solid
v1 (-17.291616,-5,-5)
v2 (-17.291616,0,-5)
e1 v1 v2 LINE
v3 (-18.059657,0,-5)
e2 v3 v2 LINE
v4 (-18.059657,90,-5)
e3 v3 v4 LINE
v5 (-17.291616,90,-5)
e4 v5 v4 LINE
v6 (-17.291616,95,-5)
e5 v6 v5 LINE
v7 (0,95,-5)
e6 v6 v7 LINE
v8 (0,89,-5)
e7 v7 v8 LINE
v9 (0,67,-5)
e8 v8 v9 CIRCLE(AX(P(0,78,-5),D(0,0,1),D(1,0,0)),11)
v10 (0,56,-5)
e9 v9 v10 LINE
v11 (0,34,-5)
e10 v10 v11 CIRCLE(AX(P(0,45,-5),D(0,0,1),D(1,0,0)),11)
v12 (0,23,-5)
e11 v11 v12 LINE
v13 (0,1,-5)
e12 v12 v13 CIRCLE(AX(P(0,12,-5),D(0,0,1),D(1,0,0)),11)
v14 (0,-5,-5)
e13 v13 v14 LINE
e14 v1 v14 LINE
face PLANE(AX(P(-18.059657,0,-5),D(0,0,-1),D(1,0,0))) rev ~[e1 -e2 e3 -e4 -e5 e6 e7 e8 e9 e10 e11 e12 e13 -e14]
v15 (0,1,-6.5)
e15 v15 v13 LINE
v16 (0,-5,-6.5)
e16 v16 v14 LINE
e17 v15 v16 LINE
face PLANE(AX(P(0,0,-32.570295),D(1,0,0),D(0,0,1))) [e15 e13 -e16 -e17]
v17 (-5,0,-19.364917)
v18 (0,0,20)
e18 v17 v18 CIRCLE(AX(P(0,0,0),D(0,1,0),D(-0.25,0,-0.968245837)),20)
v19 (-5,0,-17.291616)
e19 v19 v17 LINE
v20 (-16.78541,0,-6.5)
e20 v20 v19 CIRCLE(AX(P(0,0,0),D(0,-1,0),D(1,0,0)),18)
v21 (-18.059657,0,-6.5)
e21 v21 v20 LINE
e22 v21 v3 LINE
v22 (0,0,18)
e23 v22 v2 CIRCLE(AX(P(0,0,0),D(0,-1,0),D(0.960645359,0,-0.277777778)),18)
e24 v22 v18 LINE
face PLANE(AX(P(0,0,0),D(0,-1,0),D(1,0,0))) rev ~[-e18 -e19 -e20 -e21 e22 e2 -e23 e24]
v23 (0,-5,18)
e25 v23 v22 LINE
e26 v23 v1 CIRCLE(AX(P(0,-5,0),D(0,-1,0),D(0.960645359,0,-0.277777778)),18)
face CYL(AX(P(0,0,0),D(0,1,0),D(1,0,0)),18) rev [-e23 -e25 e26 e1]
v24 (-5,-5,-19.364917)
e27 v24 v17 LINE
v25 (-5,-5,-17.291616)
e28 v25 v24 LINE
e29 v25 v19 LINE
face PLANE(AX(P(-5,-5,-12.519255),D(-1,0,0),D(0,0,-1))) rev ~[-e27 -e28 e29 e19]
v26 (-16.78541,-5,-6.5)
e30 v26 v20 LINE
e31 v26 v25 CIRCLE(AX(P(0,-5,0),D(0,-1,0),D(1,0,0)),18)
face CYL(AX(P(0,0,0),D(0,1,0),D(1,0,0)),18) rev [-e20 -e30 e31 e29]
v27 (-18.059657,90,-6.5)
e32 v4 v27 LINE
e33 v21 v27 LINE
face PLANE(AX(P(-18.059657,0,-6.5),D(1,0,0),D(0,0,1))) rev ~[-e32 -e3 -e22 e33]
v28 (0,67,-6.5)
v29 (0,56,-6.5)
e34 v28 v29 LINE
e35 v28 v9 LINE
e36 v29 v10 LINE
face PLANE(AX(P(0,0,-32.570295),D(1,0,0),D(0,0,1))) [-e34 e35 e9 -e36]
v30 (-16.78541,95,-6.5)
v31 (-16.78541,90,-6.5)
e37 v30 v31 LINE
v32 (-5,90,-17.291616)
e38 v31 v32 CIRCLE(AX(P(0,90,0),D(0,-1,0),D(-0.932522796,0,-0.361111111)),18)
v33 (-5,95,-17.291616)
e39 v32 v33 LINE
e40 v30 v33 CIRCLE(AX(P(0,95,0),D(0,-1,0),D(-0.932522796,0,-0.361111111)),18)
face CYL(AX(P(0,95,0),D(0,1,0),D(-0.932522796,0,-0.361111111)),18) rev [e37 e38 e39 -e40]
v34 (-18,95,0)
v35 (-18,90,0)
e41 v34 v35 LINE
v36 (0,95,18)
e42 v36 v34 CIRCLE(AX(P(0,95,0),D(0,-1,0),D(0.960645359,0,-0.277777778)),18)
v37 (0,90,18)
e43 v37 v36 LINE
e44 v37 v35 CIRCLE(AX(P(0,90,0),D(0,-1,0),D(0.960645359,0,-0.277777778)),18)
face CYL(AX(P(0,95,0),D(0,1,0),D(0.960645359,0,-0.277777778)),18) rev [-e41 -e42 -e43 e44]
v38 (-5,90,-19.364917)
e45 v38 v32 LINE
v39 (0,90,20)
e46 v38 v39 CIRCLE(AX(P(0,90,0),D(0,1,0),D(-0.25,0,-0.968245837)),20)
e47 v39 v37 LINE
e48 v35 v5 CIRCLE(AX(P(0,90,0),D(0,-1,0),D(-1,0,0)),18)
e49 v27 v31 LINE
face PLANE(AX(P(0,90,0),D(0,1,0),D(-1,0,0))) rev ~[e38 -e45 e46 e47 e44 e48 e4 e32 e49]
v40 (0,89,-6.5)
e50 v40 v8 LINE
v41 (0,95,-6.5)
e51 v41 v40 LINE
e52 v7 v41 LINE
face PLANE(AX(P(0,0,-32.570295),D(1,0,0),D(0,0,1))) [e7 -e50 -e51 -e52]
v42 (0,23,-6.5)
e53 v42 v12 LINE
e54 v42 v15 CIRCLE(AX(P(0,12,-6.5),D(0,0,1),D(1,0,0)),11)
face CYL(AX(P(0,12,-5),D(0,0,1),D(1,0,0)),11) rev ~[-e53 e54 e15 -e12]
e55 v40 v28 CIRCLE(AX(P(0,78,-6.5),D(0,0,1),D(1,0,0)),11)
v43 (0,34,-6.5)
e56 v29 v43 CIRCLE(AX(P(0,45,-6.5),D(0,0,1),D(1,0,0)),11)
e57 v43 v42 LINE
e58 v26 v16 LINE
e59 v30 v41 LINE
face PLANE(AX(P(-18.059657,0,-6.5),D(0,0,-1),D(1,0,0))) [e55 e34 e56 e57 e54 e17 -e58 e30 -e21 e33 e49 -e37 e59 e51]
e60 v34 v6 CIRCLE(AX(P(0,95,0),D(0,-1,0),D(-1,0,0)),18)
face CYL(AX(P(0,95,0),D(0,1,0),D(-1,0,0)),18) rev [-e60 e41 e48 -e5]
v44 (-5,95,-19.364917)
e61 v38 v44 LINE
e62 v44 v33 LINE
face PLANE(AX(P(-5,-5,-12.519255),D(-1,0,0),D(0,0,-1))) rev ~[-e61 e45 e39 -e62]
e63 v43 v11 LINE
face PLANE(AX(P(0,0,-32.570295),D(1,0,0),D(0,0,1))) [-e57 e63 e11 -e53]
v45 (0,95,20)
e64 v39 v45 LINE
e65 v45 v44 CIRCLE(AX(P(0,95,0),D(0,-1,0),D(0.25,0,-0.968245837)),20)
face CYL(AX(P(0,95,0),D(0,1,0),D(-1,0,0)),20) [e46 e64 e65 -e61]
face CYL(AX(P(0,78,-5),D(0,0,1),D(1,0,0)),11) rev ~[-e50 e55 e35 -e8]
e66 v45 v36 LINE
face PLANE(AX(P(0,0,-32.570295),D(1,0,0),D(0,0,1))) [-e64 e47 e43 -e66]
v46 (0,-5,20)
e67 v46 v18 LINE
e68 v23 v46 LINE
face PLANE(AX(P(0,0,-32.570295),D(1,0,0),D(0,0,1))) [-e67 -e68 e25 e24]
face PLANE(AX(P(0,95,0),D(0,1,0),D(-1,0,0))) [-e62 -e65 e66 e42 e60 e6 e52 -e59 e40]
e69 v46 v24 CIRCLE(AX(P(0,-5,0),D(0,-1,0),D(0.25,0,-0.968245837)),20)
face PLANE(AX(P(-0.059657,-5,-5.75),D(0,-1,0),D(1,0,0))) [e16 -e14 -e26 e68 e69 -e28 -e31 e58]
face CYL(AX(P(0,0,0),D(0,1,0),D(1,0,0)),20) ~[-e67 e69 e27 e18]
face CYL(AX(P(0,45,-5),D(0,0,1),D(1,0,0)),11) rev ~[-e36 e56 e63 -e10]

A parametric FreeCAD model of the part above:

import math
import FreeCAD as App
import Part
import Sketcher
from FreeCAD import Vector
Q = App.Units.Quantity


def add_polygon(sketch, points):
    """Adds a closed chain of lines whose ends are joined by coincident constraints."""
    first, n = sketch.GeometryCount, len(points)
    for a, b in zip(points, points[1:] + points[:1]):
        sketch.addGeometry(Part.LineSegment(App.Vector(*a, 0), App.Vector(*b, 0)), False)
    for i in range(n):
        sketch.addConstraint(Sketcher.Constraint("Coincident", first + i, 2, first + (i + 1) % n, 1))

doc = App.newDocument("Part")
body = doc.addObject("PartDesign::Body", "Body")

sketch1 = body.newObject("Sketcher::SketchObject", "Sketch")
sketch1.AttachmentSupport = (doc.getObject("XZ_Plane"), [""])
sketch1.MapMode = "FlatFace"
sketch1.addGeometry([
    Part.Circle(Vector(0, 0, 0), Vector(0, 0, 1), 20),
    Part.Circle(Vector(0, 0, 0), Vector(0, 0, 1), 18),
], False)
sketch1.addConstraint([
    Sketcher.Constraint("Coincident", 0, 3, -1, 1),
    Sketcher.Constraint("Coincident", 1, 3, -1, 1),
    Sketcher.Constraint("Diameter", 0, Q("40 mm")),
    Sketcher.Constraint("Diameter", 1, Q("36 mm")),
])
pad1 = body.newObject("PartDesign::Pad", "Pad")
pad1.Profile = sketch1
pad1.Length = 5

sketch2 = body.newObject("Sketcher::SketchObject", "Sketch001")
sketch2.AttachmentSupport = (doc.getObject("XZ_Plane"), [""])
sketch2.MapMode = "FlatFace"
add_polygon(sketch2, [(-18.1, -5), (-18.1, -6.5), (17.9, -6.5), (17.9, -5)])
sketch2.addConstraint([
    Sketcher.Constraint("Vertical", 0),
    Sketcher.Constraint("Horizontal", 1),
    Sketcher.Constraint("Vertical", 2),
    Sketcher.Constraint("Horizontal", 3),
    Sketcher.Constraint("DistanceX", 1, 1, 1, 2, Q("36 mm")),
    Sketcher.Constraint("DistanceY", 0, 2, 0, 1, Q("1.5 mm")),
    Sketcher.Constraint("DistanceY", 2, 2, -1, 1, Q("5 mm")),
    Sketcher.Constraint("DistanceX", 0, 2, -1, 1, Q("18.059657 mm")),
])
pad2 = body.newObject("PartDesign::Pad", "Pad001")
pad2.Profile = sketch2
pad2.Type = "TwoLengths"
pad2.Length = 5
pad2.Length2 = 95

sketch3 = body.newObject("Sketcher::SketchObject", "Sketch002")
sketch3.AttachmentSupport = (doc.getObject("XZ_Plane"), [""])
sketch3.MapMode = "FlatFace"
sketch3.AttachmentOffset = App.Placement(Vector(0, 0, -95), App.Rotation())
sketch3.addGeometry([
    Part.Circle(Vector(0, 0, 0), Vector(0, 0, 1), 20),
    Part.LineSegment(Vector(17.9, -5, 0), Vector(17.3, -5, 0)),
    Part.ArcOfCircle(Part.Circle(Vector(0, 0, 0), Vector(0, 0, 1), 18), math.radians(-16), math.radians(180)),
    Part.ArcOfCircle(Part.Circle(Vector(0, 0, 0), Vector(0, 0, 1), 18), math.radians(180), math.radians(196.13)),
    Part.LineSegment(Vector(-17.3, -5, 0), Vector(-18.1, -5, 0)),
    Part.LineSegment(Vector(-18.1, -5, 0), Vector(-18.1, -6.5, 0)),
    Part.LineSegment(Vector(-18.1, -6.5, 0), Vector(-16.8, -6.5, 0)),
    Part.ArcOfCircle(Part.Circle(Vector(0, 0, 0), Vector(0, 0, 1), 18), math.radians(-159), math.radians(-21)),
    Part.LineSegment(Vector(16.8, -6.5, 0), Vector(17.9, -6.5, 0)),
    Part.LineSegment(Vector(17.9, -6.5, 0), Vector(17.9, -5, 0)),
], False)
sketch3.addConstraint([
    Sketcher.Constraint("Coincident", 1, 2, 2, 1),
    Sketcher.Constraint("Tangent", 2, 2, 3, 1),
    Sketcher.Constraint("Coincident", 3, 2, 4, 1),
    Sketcher.Constraint("Coincident", 4, 2, 5, 1),
    Sketcher.Constraint("Coincident", 5, 2, 6, 1),
    Sketcher.Constraint("Coincident", 6, 2, 7, 1),
    Sketcher.Constraint("Coincident", 7, 2, 8, 1),
    Sketcher.Constraint("Coincident", 8, 2, 9, 1),
    Sketcher.Constraint("Coincident", 9, 2, 1, 1),
    Sketcher.Constraint("Horizontal", 1),
    Sketcher.Constraint("Horizontal", 4),
    Sketcher.Constraint("Vertical", 5),
    Sketcher.Constraint("Horizontal", 6),
    Sketcher.Constraint("Horizontal", 8),
    Sketcher.Constraint("Vertical", 9),
    Sketcher.Constraint("Coincident", 0, 3, -1, 1),
    Sketcher.Constraint("Coincident", 2, 3, -1, 1),
    Sketcher.Constraint("Coincident", 7, 3, -1, 1),
    Sketcher.Constraint("Equal", 2, 3),
    Sketcher.Constraint("Equal", 3, 7),
    Sketcher.Constraint("PointOnObject", 2, 2, -1),
    Sketcher.Constraint("Horizontal", 1, 2, 3, 2),
    Sketcher.Constraint("Horizontal", 6, 2, 7, 2),
    Sketcher.Constraint("Diameter", 0, Q("40 mm")),
    Sketcher.Constraint("Radius", 2, Q("18 mm")),
    Sketcher.Constraint("DistanceY", 5, 2, 5, 1, Q("1.5 mm")),
    Sketcher.Constraint("DistanceY", 1, 2, -1, 1, Q("5 mm")),
    Sketcher.Constraint("DistanceX", 4, 2, 4, 1, Q("0.768041 mm")),
    Sketcher.Constraint("DistanceX", 1, 2, 1, 1, Q("0.648726 mm")),
])
pad3 = body.newObject("PartDesign::Pad", "Pad002")
pad3.Profile = sketch3
pad3.Length = 5

sketch4 = body.newObject("Sketcher::SketchObject", "Sketch003")
sketch4.AttachmentSupport = (doc.getObject("XZ_Plane"), [""])
sketch4.MapMode = "FlatFace"
sketch4.AttachmentOffset = App.Placement(Vector(0, 0, 5), App.Rotation())
add_polygon(sketch4, [(-5, -23), (5, -23), (5, -13), (-5, -13)])
sketch4.addConstraint([
    Sketcher.Constraint("Horizontal", 0),
    Sketcher.Constraint("Vertical", 1),
    Sketcher.Constraint("Horizontal", 2),
    Sketcher.Constraint("Vertical", 3),
    Sketcher.Constraint("Equal", 2, 1),
    Sketcher.Constraint("DistanceX", 0, 1, 0, 2, Q("10 mm")),
    Sketcher.Constraint("DistanceX", -1, 1, 0, 2, Q("5 mm")),
    Sketcher.Constraint("DistanceY", 0, 2, -1, 1, Q("22.519255 mm")),
])
pocket1 = body.newObject("PartDesign::Pocket", "Pocket")
pocket1.Profile = sketch4
pocket1.Type = "ThroughAll"

sketch5 = body.newObject("Sketcher::SketchObject", "Sketch004")
sketch5.AttachmentSupport = (doc.getObject("XY_Plane"), [""])
sketch5.MapMode = "FlatFace"
sketch5.AttachmentOffset = App.Placement(Vector(0, 0, -5), App.Rotation())
sketch5.addGeometry([
    Part.Circle(Vector(0, 12, 0), Vector(0, 0, 1), 11),
    Part.Circle(Vector(0, 45, 0), Vector(0, 0, 1), 11),
    Part.Circle(Vector(0, 78, 0), Vector(0, 0, 1), 11),
], False)
sketch5.addConstraint([
    Sketcher.Constraint("Equal", 0, 1),
    Sketcher.Constraint("Equal", 1, 2),
    Sketcher.Constraint("PointOnObject", 0, 3, -2),
    Sketcher.Constraint("PointOnObject", 1, 3, -2),
    Sketcher.Constraint("PointOnObject", 2, 3, -2),
    Sketcher.Constraint("Diameter", 0, Q("22 mm")),
    Sketcher.Constraint("DistanceY", -1, 1, 0, 3, Q("12 mm")),
    Sketcher.Constraint("DistanceY", -1, 1, 1, 3, Q("45 mm")),
    Sketcher.Constraint("DistanceY", -1, 1, 2, 3, Q("78 mm")),
])
pocket2 = body.newObject("PartDesign::Pocket", "Pocket001")
pocket2.Profile = sketch5
pocket2.Type = "ThroughAll"

sketch6 = body.newObject("Sketcher::SketchObject", "Sketch005")
sketch6.AttachmentSupport = (doc.getObject("XZ_Plane"), [""])
sketch6.MapMode = "FlatFace"
add_polygon(sketch6, [(0, 32), (0, -33), (25, -33), (25, 32)])
sketch6.addConstraint([
    Sketcher.Constraint("Vertical", 0),
    Sketcher.Constraint("Horizontal", 1),
    Sketcher.Constraint("Vertical", 2),
    Sketcher.Constraint("Horizontal", 3),
    Sketcher.Constraint("PointOnObject", 0, 2, -2),
    Sketcher.Constraint("DistanceX", 1, 1, 1, 2, Q("25.25378 mm")),
    Sketcher.Constraint("DistanceY", 0, 2, 0, 1, Q("64.432539 mm")),
    Sketcher.Constraint("DistanceY", 0, 2, -1, 1, Q("32.570295 mm")),
])
pocket3 = body.newObject("PartDesign::Pocket", "Pocket002")
pocket3.Profile = sketch6
pocket3.Length = 200
pocket3.Midplane = True

doc.recompute()
